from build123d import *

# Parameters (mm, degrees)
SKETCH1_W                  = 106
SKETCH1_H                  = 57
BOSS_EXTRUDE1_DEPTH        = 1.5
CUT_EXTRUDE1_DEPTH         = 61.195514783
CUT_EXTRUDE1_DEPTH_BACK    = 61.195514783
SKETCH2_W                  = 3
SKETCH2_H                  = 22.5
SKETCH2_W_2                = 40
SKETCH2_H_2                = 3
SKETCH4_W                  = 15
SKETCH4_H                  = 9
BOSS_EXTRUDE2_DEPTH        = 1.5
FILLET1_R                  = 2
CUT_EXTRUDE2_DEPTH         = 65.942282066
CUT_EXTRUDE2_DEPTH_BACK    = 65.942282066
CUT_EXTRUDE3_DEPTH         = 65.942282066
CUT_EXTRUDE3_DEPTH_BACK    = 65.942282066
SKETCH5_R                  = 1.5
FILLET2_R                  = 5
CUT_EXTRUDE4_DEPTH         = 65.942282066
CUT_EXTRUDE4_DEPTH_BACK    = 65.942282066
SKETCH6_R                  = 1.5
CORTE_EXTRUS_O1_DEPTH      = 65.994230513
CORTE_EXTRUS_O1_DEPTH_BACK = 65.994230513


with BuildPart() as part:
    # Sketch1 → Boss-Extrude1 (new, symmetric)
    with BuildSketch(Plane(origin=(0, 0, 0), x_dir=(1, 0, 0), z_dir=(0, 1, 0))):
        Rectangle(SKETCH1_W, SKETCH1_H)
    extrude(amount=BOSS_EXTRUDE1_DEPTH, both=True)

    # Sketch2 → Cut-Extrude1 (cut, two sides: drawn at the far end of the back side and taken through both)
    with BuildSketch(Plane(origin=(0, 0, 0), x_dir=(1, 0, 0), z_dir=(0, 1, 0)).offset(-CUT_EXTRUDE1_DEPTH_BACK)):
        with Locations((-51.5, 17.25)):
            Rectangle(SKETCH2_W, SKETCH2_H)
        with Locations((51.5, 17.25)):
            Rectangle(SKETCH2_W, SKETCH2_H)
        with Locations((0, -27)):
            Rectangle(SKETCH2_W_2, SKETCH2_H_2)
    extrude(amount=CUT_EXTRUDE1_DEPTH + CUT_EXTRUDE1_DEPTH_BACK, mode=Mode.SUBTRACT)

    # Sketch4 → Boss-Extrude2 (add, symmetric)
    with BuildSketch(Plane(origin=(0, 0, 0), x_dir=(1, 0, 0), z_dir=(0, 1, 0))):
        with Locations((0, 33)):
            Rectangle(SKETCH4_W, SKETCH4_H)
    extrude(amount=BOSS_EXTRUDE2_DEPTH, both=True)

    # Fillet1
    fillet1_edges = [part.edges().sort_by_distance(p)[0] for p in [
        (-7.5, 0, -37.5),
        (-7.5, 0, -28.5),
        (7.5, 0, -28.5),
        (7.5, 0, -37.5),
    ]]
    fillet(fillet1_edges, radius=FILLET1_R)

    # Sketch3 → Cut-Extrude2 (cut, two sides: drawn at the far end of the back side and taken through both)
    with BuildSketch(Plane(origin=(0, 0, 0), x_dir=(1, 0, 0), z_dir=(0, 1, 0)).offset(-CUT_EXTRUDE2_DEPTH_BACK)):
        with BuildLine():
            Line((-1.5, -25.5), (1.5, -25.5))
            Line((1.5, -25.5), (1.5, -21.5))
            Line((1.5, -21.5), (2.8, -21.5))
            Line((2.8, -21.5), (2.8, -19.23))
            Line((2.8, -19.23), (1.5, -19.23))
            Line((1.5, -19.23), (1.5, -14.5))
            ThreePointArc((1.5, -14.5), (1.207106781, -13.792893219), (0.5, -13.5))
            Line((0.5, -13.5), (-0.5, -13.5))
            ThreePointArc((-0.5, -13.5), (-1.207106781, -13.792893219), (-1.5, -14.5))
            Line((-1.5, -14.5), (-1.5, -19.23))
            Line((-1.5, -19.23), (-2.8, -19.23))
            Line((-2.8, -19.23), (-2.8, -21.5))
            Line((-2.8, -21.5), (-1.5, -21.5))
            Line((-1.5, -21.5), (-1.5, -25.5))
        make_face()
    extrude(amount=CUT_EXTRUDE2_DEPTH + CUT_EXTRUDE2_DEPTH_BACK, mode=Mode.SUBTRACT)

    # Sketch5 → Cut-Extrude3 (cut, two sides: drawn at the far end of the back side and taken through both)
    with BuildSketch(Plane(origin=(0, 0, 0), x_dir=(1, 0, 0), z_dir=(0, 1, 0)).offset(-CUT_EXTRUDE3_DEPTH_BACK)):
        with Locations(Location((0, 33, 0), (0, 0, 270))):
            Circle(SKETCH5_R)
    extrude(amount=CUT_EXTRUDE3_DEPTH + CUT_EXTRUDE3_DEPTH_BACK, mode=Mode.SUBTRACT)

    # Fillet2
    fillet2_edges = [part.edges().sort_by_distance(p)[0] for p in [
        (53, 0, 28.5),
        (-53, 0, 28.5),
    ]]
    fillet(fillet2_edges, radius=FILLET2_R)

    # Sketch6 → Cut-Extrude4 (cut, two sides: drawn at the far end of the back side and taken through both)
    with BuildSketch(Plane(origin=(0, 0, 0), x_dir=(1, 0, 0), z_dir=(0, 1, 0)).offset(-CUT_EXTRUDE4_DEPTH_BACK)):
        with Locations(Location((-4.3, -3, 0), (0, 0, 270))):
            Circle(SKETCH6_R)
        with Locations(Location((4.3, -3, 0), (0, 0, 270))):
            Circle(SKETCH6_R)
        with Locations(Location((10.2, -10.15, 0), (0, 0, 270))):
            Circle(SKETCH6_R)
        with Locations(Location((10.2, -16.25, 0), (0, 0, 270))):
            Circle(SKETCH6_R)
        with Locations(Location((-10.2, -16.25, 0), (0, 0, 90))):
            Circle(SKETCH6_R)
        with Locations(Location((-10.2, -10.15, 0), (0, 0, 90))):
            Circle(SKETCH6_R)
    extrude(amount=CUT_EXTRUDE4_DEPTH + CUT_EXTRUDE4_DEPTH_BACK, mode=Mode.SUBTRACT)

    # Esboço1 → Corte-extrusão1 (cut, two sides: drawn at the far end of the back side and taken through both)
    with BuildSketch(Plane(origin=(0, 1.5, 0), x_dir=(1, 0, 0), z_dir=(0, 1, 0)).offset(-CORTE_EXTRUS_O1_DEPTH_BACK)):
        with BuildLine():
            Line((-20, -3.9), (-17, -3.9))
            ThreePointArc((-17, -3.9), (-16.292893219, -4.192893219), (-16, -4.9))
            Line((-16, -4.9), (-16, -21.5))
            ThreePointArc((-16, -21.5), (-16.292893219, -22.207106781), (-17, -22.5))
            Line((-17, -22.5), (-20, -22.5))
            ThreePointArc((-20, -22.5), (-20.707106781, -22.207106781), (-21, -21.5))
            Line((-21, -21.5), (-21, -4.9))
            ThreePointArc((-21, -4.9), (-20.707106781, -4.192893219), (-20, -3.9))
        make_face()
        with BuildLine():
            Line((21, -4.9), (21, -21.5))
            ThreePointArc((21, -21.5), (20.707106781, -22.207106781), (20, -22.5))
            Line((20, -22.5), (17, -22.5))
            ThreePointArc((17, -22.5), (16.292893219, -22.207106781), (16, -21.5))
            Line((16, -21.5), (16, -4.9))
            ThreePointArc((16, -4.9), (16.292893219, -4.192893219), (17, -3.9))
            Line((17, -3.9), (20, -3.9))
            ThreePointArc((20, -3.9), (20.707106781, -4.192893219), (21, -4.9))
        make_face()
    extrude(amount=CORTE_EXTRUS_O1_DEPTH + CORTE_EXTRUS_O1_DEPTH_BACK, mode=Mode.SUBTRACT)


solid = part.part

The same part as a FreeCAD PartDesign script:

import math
import FreeCAD as App
import Part
import Sketcher

V = App.Vector
Q = App.Units.Quantity


def edges_at(feature, points):
    """Names of the edges that pass closest to the given points."""
    edges = feature.Shape.Edges
    near = lambda p: min(range(len(edges)), key=lambda i: edges[i].distToShape(Part.Vertex(*p))[0])
    return sorted({f"Edge{near(p) + 1}" for p in points})


def add_polygon(sketch, points):
    """Adds a closed chain of lines whose ends are joined by coincident constraints."""
    first, n = sketch.GeometryCount, len(points)
    for a, b in zip(points, points[1:] + points[:1]):
        sketch.addGeometry(Part.LineSegment(App.Vector(*a, 0), App.Vector(*b, 0)), False)
    for i in range(n):
        sketch.addConstraint(Sketcher.Constraint("Coincident", first + i, 2, first + (i + 1) % n, 1))

doc = App.newDocument("Part")
params = doc.addObject("Spreadsheet::Sheet", "Params")
for row, (alias, value) in enumerate([
    ("sketch1_width", "106 mm"),
    ("sketch1_height", "57 mm"),
    ("pad1_length", "3 mm"),
    ("sketch2_width", "3 mm"),
    ("sketch2_width2", "40 mm"),
    ("sketch2_height", "22.5 mm"),
    ("sketch3_width", "15 mm"),
    ("sketch3_height", "9 mm"),
    ("pad2_length", "3 mm"),
    ("fillet_radius", "2 mm"),
    ("sketch4_radius", "1 mm"),
    ("sketch4_width", "3 mm"),
    ("sketch4_height", "4 mm"),
    ("sketch4_width2", "1.3 mm"),
    ("sketch4_height2", "2.27 mm"),
    ("sketch5_diameter", "3 mm"),
    ("fillet2_radius", "5 mm"),
    ("sketch6_diameter", "3 mm"),
    ("sketch7_radius", "1 mm"),
    ("sketch7_width", "3 mm"),
    ("sketch7_height", "16.6 mm"),
], start=1):
    params.set(f"A{row}", alias)
    params.set(f"B{row}", "=" + value)
    params.setAlias(f"B{row}", alias)

body = doc.addObject("PartDesign::Body", "Body")

# Sketch on XZ plane
sketch1 = doc.addObject("Sketcher::SketchObject", "Sketch")
body.addObject(sketch1)
sketch1.AttachmentSupport = (doc.XZ_Plane, [""])
sketch1.MapMode = "FlatFace"
add_polygon(sketch1, [(-53, -28.5), (-53, 28.5), (53, 28.5), (53, -28.5)])  # lines 0-3
sketch1.addConstraint([
    Sketcher.Constraint("Vertical", 0),
    Sketcher.Constraint("Horizontal", 1),
    Sketcher.Constraint("Vertical", 2),
    Sketcher.Constraint("Horizontal", 3),
    Sketcher.Constraint("Symmetric", 0, 2, 2, 2, -1, 1),
    Sketcher.Constraint("DistanceX", 1, 1, 1, 2, Q("106 mm")),
    Sketcher.Constraint("DistanceY", 0, 1, 0, 2, Q("57 mm")),
])
sketch1.setExpression("Constraints[9]", "Params.sketch1_width")
sketch1.setExpression("Constraints[10]", "Params.sketch1_height")
pad1 = doc.addObject("PartDesign::Pad", "Pad")
body.addObject(pad1)
pad1.Profile = sketch1
pad1.setExpression("Length", "Params.pad1_length")
pad1.Midplane = True

# Sketch on XZ plane
sketch2 = doc.addObject("Sketcher::SketchObject", "Sketch001")
body.addObject(sketch2)
sketch2.AttachmentSupport = (doc.XZ_Plane, [""])
sketch2.MapMode = "FlatFace"
add_polygon(sketch2, [(-53, -28.5), (-53, -6), (-50, -6), (-50, -28.5)])  # lines 0-3
add_polygon(sketch2, [(50, -28.5), (50, -6), (53, -6), (53, -28.5)])  # lines 4-7
add_polygon(sketch2, [(-20, 25.5), (-20, 28.5), (20, 28.5), (20, 25.5)])  # lines 8-11
sketch2.addConstraint([
    Sketcher.Constraint("Vertical", 0),
    Sketcher.Constraint("Horizontal", 1),
    Sketcher.Constraint("Vertical", 2),
    Sketcher.Constraint("Horizontal", 3),
    Sketcher.Constraint("Vertical", 4),
    Sketcher.Constraint("Horizontal", 5),
    Sketcher.Constraint("Vertical", 6),
    Sketcher.Constraint("Horizontal", 7),
    Sketcher.Constraint("Vertical", 8),
    Sketcher.Constraint("Horizontal", 9),
    Sketcher.Constraint("Vertical", 10),
    Sketcher.Constraint("Horizontal", 11),
    Sketcher.Constraint("Symmetric", 1, 2, 4, 2, -2),
    Sketcher.Constraint("Symmetric", 3, 2, 6, 2, -2),
    Sketcher.Constraint("Equal", 7, 8),
    Sketcher.Constraint("DistanceX", 1, 1, 1, 2, Q("3 mm")),
    Sketcher.Constraint("DistanceX", 9, 1, 9, 2, Q("40 mm")),
    Sketcher.Constraint("DistanceY", 0, 1, 0, 2, Q("22.5 mm")),
    Sketcher.Constraint("DistanceX", 0, 2, -1, 1, Q("53 mm")),
    Sketcher.Constraint("DistanceY", 0, 2, -1, 1, Q("6 mm")),
    Sketcher.Constraint("DistanceX", 8, 2, -1, 1, Q("20 mm")),
    Sketcher.Constraint("DistanceY", 2, 2, 8, 2, Q("57 mm")),
])
sketch2.setExpression("Constraints[27]", "Params.sketch2_width")
sketch2.setExpression("Constraints[28]", "Params.sketch2_width2")
sketch2.setExpression("Constraints[29]", "Params.sketch2_height")
pocket1 = doc.addObject("PartDesign::Pocket", "Pocket")
body.addObject(pocket1)
pocket1.Profile = sketch2
pocket1.Type = "ThroughAll"
pocket1.Midplane = True

# Sketch on XZ plane
sketch3 = doc.addObject("Sketcher::SketchObject", "Sketch002")
body.addObject(sketch3)
sketch3.AttachmentSupport = (doc.XZ_Plane, [""])
sketch3.MapMode = "FlatFace"
add_polygon(sketch3, [(-7.5, -37.5), (-7.5, -28.5), (7.5, -28.5), (7.5, -37.5)])  # lines 0-3
sketch3.addConstraint([
    Sketcher.Constraint("Vertical", 0),
    Sketcher.Constraint("Horizontal", 1),
    Sketcher.Constraint("Vertical", 2),
    Sketcher.Constraint("Horizontal", 3),
    Sketcher.Constraint("DistanceX", 1, 1, 1, 2, Q("15 mm")),
    Sketcher.Constraint("DistanceY", 0, 1, 0, 2, Q("9 mm")),
    Sketcher.Constraint("DistanceX", 0, 2, -1, 1, Q("7.5 mm")),
    Sketcher.Constraint("DistanceY", 0, 2, -1, 1, Q("28.5 mm")),
])
sketch3.setExpression("Constraints[8]", "Params.sketch3_width")
sketch3.setExpression("Constraints[9]", "Params.sketch3_height")
pad2 = doc.addObject("PartDesign::Pad", "Pad001")
body.addObject(pad2)
pad2.Profile = sketch3
pad2.setExpression("Length", "Params.pad2_length")
pad2.Midplane = True
doc.recompute()

fillet = doc.addObject("PartDesign::Fillet", "Fillet")
body.addObject(fillet)
fillet.Base = (pad2, edges_at(pad2, [
    (-7.5, 0, -37.5),
    (-7.5, 0, -28.5),
    (7.5, 0, -28.5),
    (7.5, 0, -37.5),
]))
fillet.setExpression("Radius", "Params.fillet_radius")

# Sketch on XZ plane
sketch4 = doc.addObject("Sketcher::SketchObject", "Sketch003")
body.addObject(sketch4)
sketch4.AttachmentSupport = (doc.XZ_Plane, [""])
sketch4.MapMode = "FlatFace"
sketch4.addGeometry([
    Part.LineSegment(V(-1.5, 25.5, 0), V(1.5, 25.5, 0)),  # 0
    Part.LineSegment(V(1.5, 25.5, 0), V(1.5, 21.5, 0)),  # 1
    Part.LineSegment(V(1.5, 21.5, 0), V(2.8, 21.5, 0)),  # 2
    Part.LineSegment(V(2.8, 21.5, 0), V(2.8, 19.23, 0)),  # 3
    Part.LineSegment(V(2.8, 19.23, 0), V(1.5, 19.23, 0)),  # 4
    Part.LineSegment(V(1.5, 19.23, 0), V(1.5, 14.5, 0)),  # 5
    Part.ArcOfCircle(Part.Circle(V(0.5, 14.5, 0), V(0, 0, 1), 1), math.radians(-90), math.radians(0)),  # 6
    Part.LineSegment(V(0.5, 13.5, 0), V(-0.5, 13.5, 0)),  # 7
    Part.ArcOfCircle(Part.Circle(V(-0.5, 14.5, 0), V(0, 0, 1), 1), math.radians(-180), math.radians(-90)),  # 8
    Part.LineSegment(V(-1.5, 14.5, 0), V(-1.5, 19.23, 0)),  # 9
    Part.LineSegment(V(-1.5, 19.23, 0), V(-2.8, 19.23, 0)),  # 10
    Part.LineSegment(V(-2.8, 19.23, 0), V(-2.8, 21.5, 0)),  # 11
    Part.LineSegment(V(-2.8, 21.5, 0), V(-1.5, 21.5, 0)),  # 12
    Part.LineSegment(V(-1.5, 21.5, 0), V(-1.5, 25.5, 0)),  # 13
], False)
sketch4.addConstraint([
    Sketcher.Constraint("Coincident", 0, 2, 1, 1),
    Sketcher.Constraint("Coincident", 1, 2, 2, 1),
    Sketcher.Constraint("Coincident", 2, 2, 3, 1),
    Sketcher.Constraint("Coincident", 3, 2, 4, 1),
    Sketcher.Constraint("Coincident", 4, 2, 5, 1),
    Sketcher.Constraint("Tangent", 5, 2, 6, 2),
    Sketcher.Constraint("Tangent", 6, 1, 7, 1),
    Sketcher.Constraint("Tangent", 7, 2, 8, 2),
    Sketcher.Constraint("Tangent", 8, 1, 9, 1),
    Sketcher.Constraint("Coincident", 9, 2, 10, 1),
    Sketcher.Constraint("Coincident", 10, 2, 11, 1),
    Sketcher.Constraint("Coincident", 11, 2, 12, 1),
    Sketcher.Constraint("Coincident", 12, 2, 13, 1),
    Sketcher.Constraint("Coincident", 13, 2, 0, 1),
    Sketcher.Constraint("Horizontal", 0),
    Sketcher.Constraint("Vertical", 1),
    Sketcher.Constraint("Horizontal", 2),
    Sketcher.Constraint("Vertical", 3),
    Sketcher.Constraint("Horizontal", 4),
    Sketcher.Constraint("Vertical", 5),
    Sketcher.Constraint("Horizontal", 7),
    Sketcher.Constraint("Vertical", 9),
    Sketcher.Constraint("Horizontal", 10),
    Sketcher.Constraint("Vertical", 11),
    Sketcher.Constraint("Horizontal", 12),
    Sketcher.Constraint("Vertical", 13),
    Sketcher.Constraint("Equal", 6, 8),
    Sketcher.Constraint("Symmetric", 4, 2, 9, 2, -2),
    Sketcher.Constraint("Symmetric", 2, 2, 11, 2, -2),
    Sketcher.Constraint("Vertical", 1, 2, 4, 2),
    Sketcher.Constraint("Vertical", 9, 2, 12, 2),
    Sketcher.Constraint("Radius", 6, Q("1 mm")),
    Sketcher.Constraint("DistanceX", 0, 1, 0, 2, Q("3 mm")),
    Sketcher.Constraint("DistanceY", 1, 2, 1, 1, Q("4 mm")),
    Sketcher.Constraint("DistanceX", 2, 1, 2, 2, Q("1.3 mm")),
    Sketcher.Constraint("DistanceY", 6, 3, 0, 2, Q("11 mm")),
    Sketcher.Constraint("DistanceY", 3, 2, 3, 1, Q("2.27 mm")),
    Sketcher.Constraint("DistanceY", -1, 1, 6, 3, Q("14.5 mm")),
])
sketch4.setExpression("Constraints[31]", "Params.sketch4_radius")
sketch4.setExpression("Constraints[32]", "Params.sketch4_width")
sketch4.setExpression("Constraints[33]", "Params.sketch4_height")
sketch4.setExpression("Constraints[34]", "Params.sketch4_width2")
sketch4.setExpression("Constraints[36]", "Params.sketch4_height2")
pocket2 = doc.addObject("PartDesign::Pocket", "Pocket001")
body.addObject(pocket2)
pocket2.Profile = sketch4
pocket2.Type = "ThroughAll"
pocket2.Midplane = True

# Sketch on XZ plane
sketch5 = doc.addObject("Sketcher::SketchObject", "Sketch004")
body.addObject(sketch5)
sketch5.AttachmentSupport = (doc.XZ_Plane, [""])
sketch5.MapMode = "FlatFace"
sketch5.addGeometry(Part.Circle(V(0, -33, 0), V(0, 0, 1), 1.5), False)
sketch5.addConstraint([
    Sketcher.Constraint("PointOnObject", 0, 3, -2),
    Sketcher.Constraint("Diameter", 0, Q("3 mm")),
    Sketcher.Constraint("DistanceY", 0, 3, -1, 1, Q("33 mm")),
])
sketch5.setExpression("Constraints[1]", "Params.sketch5_diameter")
pocket3 = doc.addObject("PartDesign::Pocket", "Pocket002")
body.addObject(pocket3)
pocket3.Profile = sketch5
pocket3.Type = "ThroughAll"
pocket3.Midplane = True
doc.recompute()

fillet2 = doc.addObject("PartDesign::Fillet", "Fillet001")
body.addObject(fillet2)
fillet2.Base = (pocket3, edges_at(pocket3, [(53, 0, 28.5), (-53, 0, 28.5)]))
fillet2.setExpression("Radius", "Params.fillet2_radius")

# Sketch on XZ plane
sketch6 = doc.addObject("Sketcher::SketchObject", "Sketch005")
body.addObject(sketch6)
sketch6.AttachmentSupport = (doc.XZ_Plane, [""])
sketch6.MapMode = "FlatFace"
sketch6.addGeometry([
    Part.Circle(V(-4.3, 3, 0), V(0, 0, 1), 1.5),  # 0
    Part.Circle(V(4.3, 3, 0), V(0, 0, 1), 1.5),  # 1
    Part.Circle(V(10.2, 10.15, 0), V(0, 0, 1), 1.5),  # 2
    Part.Circle(V(10.2, 16.25, 0), V(0, 0, 1), 1.5),  # 3
    Part.Circle(V(-10.2, 16.25, 0), V(0, 0, 1), 1.5),  # 4
    Part.Circle(V(-10.2, 10.15, 0), V(0, 0, 1), 1.5),  # 5
], False)
sketch6.addConstraint([
    Sketcher.Constraint("Equal", 0, 1),
    Sketcher.Constraint("Equal", 1, 2),
    Sketcher.Constraint("Equal", 2, 3),
    Sketcher.Constraint("Equal", 3, 4),
    Sketcher.Constraint("Equal", 4, 5),
    Sketcher.Constraint("Symmetric", 0, 3, 1, 3, -2),
    Sketcher.Constraint("Symmetric", 3, 3, 4, 3, -2),
    Sketcher.Constraint("Symmetric", 2, 3, 5, 3, -2),
    Sketcher.Constraint("Vertical", 2, 3, 3, 3),
    Sketcher.Constraint("Diameter", 0, Q("3 mm")),
    Sketcher.Constraint("DistanceY", -1, 1, 0, 3, Q("3 mm")),
    Sketcher.Constraint("DistanceX", 0, 3, -1, 1, Q("4.3 mm")),
    Sketcher.Constraint("DistanceX", -1, 1, 2, 3, Q("10.2 mm")),
    Sketcher.Constraint("DistanceY", 2, 3, 3, 3, Q("6.1 mm")),
    Sketcher.Constraint("DistanceY", -1, 1, 2, 3, Q("10.15 mm")),
])
sketch6.setExpression("Constraints[9]", "Params.sketch6_diameter")
pocket4 = doc.addObject("PartDesign::Pocket", "Pocket003")
body.addObject(pocket4)
pocket4.Profile = sketch6
pocket4.Type = "ThroughAll"
pocket4.Midplane = True

# Sketch on XZ plane
sketch7 = doc.addObject("Sketcher::SketchObject", "Sketch006")
body.addObject(sketch7)
sketch7.AttachmentSupport = (doc.XZ_Plane, [""])
sketch7.MapMode = "FlatFace"
sketch7.AttachmentOffset = App.Placement(V(0, 0, -1.5), App.Rotation())
sketch7.addGeometry([
    Part.LineSegment(V(-17, 3.9, 0), V(-20, 3.9, 0)),  # 0
    Part.ArcOfCircle(Part.Circle(V(-20, 4.9, 0), V(0, 0, 1), 1), math.radians(-180), math.radians(-90)),  # 1
    Part.LineSegment(V(-21, 4.9, 0), V(-21, 21.5, 0)),  # 2
    Part.ArcOfCircle(Part.Circle(V(-20, 21.5, 0), V(0, 0, 1), 1), math.radians(90), math.radians(180)),  # 3
    Part.LineSegment(V(-20, 22.5, 0), V(-17, 22.5, 0)),  # 4
    Part.ArcOfCircle(Part.Circle(V(-17, 21.5, 0), V(0, 0, 1), 1), math.radians(0), math.radians(90)),  # 5
    Part.LineSegment(V(-16, 21.5, 0), V(-16, 4.9, 0)),  # 6
    Part.ArcOfCircle(Part.Circle(V(-17, 4.9, 0), V(0, 0, 1), 1), math.radians(-90), math.radians(0)),  # 7
    Part.LineSegment(V(21, 21.5, 0), V(21, 4.9, 0)),  # 8
    Part.ArcOfCircle(Part.Circle(V(20, 4.9, 0), V(0, 0, 1), 1), math.radians(-90), math.radians(0)),  # 9
    Part.LineSegment(V(20, 3.9, 0), V(17, 3.9, 0)),  # 10
    Part.ArcOfCircle(Part.Circle(V(17, 4.9, 0), V(0, 0, 1), 1), math.radians(-180), math.radians(-90)),  # 11
    Part.LineSegment(V(16, 4.9, 0), V(16, 21.5, 0)),  # 12
    Part.ArcOfCircle(Part.Circle(V(17, 21.5, 0), V(0, 0, 1), 1), math.radians(90), math.radians(180)),  # 13
    Part.LineSegment(V(17, 22.5, 0), V(20, 22.5, 0)),  # 14
    Part.ArcOfCircle(Part.Circle(V(20, 21.5, 0), V(0, 0, 1), 1), math.radians(0), math.radians(90)),  # 15
], False)
sketch7.addConstraint([
    Sketcher.Constraint("Tangent", 0, 2, 1, 2),
    Sketcher.Constraint("Tangent", 1, 1, 2, 1),
    Sketcher.Constraint("Tangent", 2, 2, 3, 2),
    Sketcher.Constraint("Tangent", 3, 1, 4, 1),
    Sketcher.Constraint("Tangent", 4, 2, 5, 2),
    Sketcher.Constraint("Tangent", 5, 1, 6, 1),
    Sketcher.Constraint("Tangent", 6, 2, 7, 2),
    Sketcher.Constraint("Tangent", 7, 1, 0, 1),
    Sketcher.Constraint("Tangent", 8, 2, 9, 2),
    Sketcher.Constraint("Tangent", 9, 1, 10, 1),
    Sketcher.Constraint("Tangent", 10, 2, 11, 2),
    Sketcher.Constraint("Tangent", 11, 1, 12, 1),
    Sketcher.Constraint("Tangent", 12, 2, 13, 2),
    Sketcher.Constraint("Tangent", 13, 1, 14, 1),
    Sketcher.Constraint("Tangent", 14, 2, 15, 2),
    Sketcher.Constraint("Tangent", 15, 1, 8, 1),
    Sketcher.Constraint("Horizontal", 0),
    Sketcher.Constraint("Vertical", 2),
    Sketcher.Constraint("Horizontal", 4),
    Sketcher.Constraint("Vertical", 6),
    Sketcher.Constraint("Vertical", 8),
    Sketcher.Constraint("Horizontal", 10),
    Sketcher.Constraint("Vertical", 12),
    Sketcher.Constraint("Horizontal", 14),
    Sketcher.Constraint("Equal", 1, 3),
    Sketcher.Constraint("Equal", 3, 5),
    Sketcher.Constraint("Equal", 5, 7),
    Sketcher.Constraint("Equal", 7, 9),
    Sketcher.Constraint("Equal", 9, 11),
    Sketcher.Constraint("Equal", 11, 13),
    Sketcher.Constraint("Equal", 13, 15),
    Sketcher.Constraint("Symmetric", 1, 3, 9, 3, -2),
    Sketcher.Constraint("Symmetric", 5, 3, 13, 3, -2),
    Sketcher.Constraint("Radius", 1, Q("1 mm")),
    Sketcher.Constraint("DistanceX", 0, 2, 0, 1, Q("3 mm")),
    Sketcher.Constraint("DistanceY", 2, 1, 2, 2, Q("16.6 mm")),
    Sketcher.Constraint("DistanceX", 1, 3, -1, 1, Q("20 mm")),
    Sketcher.Constraint("DistanceY", -1, 1, 1, 3, Q("4.9 mm")),
])
sketch7.setExpression("Constraints[33]", "Params.sketch7_radius")
sketch7.setExpression("Constraints[34]", "Params.sketch7_width")
sketch7.setExpression("Constraints[35]", "Params.sketch7_height")
pocket5 = doc.addObject("PartDesign::Pocket", "Pocket004")
body.addObject(pocket5)
pocket5.Profile = sketch7
pocket5.Type = "ThroughAll"
pocket5.Midplane = True

doc.recompute()
